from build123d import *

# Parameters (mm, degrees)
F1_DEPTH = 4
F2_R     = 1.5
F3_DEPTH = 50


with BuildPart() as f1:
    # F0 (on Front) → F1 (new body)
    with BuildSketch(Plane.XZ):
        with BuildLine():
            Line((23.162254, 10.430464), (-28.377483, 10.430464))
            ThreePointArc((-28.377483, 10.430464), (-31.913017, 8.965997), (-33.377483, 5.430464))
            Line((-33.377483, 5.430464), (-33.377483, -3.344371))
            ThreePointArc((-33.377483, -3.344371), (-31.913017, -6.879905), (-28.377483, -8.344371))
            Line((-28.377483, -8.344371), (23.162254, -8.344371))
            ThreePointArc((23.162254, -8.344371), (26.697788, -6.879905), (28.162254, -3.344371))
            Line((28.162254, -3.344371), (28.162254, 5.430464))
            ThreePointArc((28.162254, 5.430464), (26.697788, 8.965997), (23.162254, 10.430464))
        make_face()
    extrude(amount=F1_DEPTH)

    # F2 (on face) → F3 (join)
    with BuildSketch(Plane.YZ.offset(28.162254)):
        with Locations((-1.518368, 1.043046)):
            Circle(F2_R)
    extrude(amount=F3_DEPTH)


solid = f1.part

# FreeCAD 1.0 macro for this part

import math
import FreeCAD as App
import Part
import Sketcher

doc = App.newDocument("Part")
params = doc.addObject("Spreadsheet::Sheet", "Params")
for row, (alias, value) in enumerate([
    ("sketch1_radius", "5.000001 mm"),
    ("pad1_length", "4 mm"),
    ("sketch2_diameter", "3 mm"),
    ("pad2_length", "50 mm"),
], start=1):
    params.set(f"A{row}", alias)
    params.set(f"B{row}", "=" + value)
    params.setAlias(f"B{row}", alias)

body = doc.addObject("PartDesign::Body", "Body")

# Sketch on XZ plane
sketch1 = doc.addObject("Sketcher::SketchObject", "Sketch")
body.addObject(sketch1)
sketch1.AttachmentSupport = (doc.XZ_Plane, [""])
sketch1.MapMode = "FlatFace"
sketch1.addGeometry([
    Part.LineSegment(App.Vector(23.2, 10.4, 0), App.Vector(-28.4, 10.4, 0)),  # 0
    Part.ArcOfCircle(Part.Circle(App.Vector(-28.4, 5.4, 0), App.Vector(0, 0, 1), 5), math.radians(90), math.radians(180)),  # 1
    Part.LineSegment(App.Vector(-33.4, 5.4, 0), App.Vector(-33.4, -3.3, 0)),  # 2
    Part.ArcOfCircle(Part.Circle(App.Vector(-28.4, -3.3, 0), App.Vector(0, 0, 1), 5), math.radians(180), math.radians(270)),  # 3
    Part.LineSegment(App.Vector(-28.4, -8.3, 0), App.Vector(23.2, -8.3, 0)),  # 4
    Part.ArcOfCircle(Part.Circle(App.Vector(23.2, -3.3, 0), App.Vector(0, 0, 1), 5), math.radians(-90), math.radians(0)),  # 5
    Part.LineSegment(App.Vector(28.2, -3.3, 0), App.Vector(28.2, 5.4, 0)),  # 6
    Part.ArcOfCircle(Part.Circle(App.Vector(23.2, 5.4, 0), App.Vector(0, 0, 1), 5), math.radians(0), math.radians(90)),  # 7
], False)
sketch1.addConstraint([
    Sketcher.Constraint("Tangent", 0, 2, 1, 1),
    Sketcher.Constraint("Tangent", 1, 2, 2, 1),
    Sketcher.Constraint("Tangent", 2, 2, 3, 1),
    Sketcher.Constraint("Tangent", 3, 2, 4, 1),
    Sketcher.Constraint("Tangent", 4, 2, 5, 1),
    Sketcher.Constraint("Tangent", 5, 2, 6, 1),
    Sketcher.Constraint("Tangent", 6, 2, 7, 1),
    Sketcher.Constraint("Tangent", 7, 2, 0, 1),
    Sketcher.Constraint("Horizontal", 0),
    Sketcher.Constraint("Vertical", 2),
    Sketcher.Constraint("Horizontal", 4),
    Sketcher.Constraint("Vertical", 6),
    Sketcher.Constraint("Equal", 1, 3),
    Sketcher.Constraint("Equal", 3, 5),
    Sketcher.Constraint("Equal", 5, 7),
    Sketcher.Constraint("Radius", 1, 5.000001),
    Sketcher.Constraint("DistanceX", 0, 2, 0, 1, 51.539737),
    Sketcher.Constraint("DistanceY", 2, 2, 2, 1, 8.774835),
    Sketcher.Constraint("DistanceX", 1, 3, -1, 1, 28.377482),
    Sketcher.Constraint("DistanceY", 3, 3, -1, 1, 3.344371),
])
sketch1.setExpression("Constraints[15]", "Params.sketch1_radius")
pad1 = doc.addObject("PartDesign::Pad", "Pad")
body.addObject(pad1)
pad1.Profile = sketch1
pad1.setExpression("Length", "Params.pad1_length")

# Sketch on YZ plane
sketch2 = doc.addObject("Sketcher::SketchObject", "Sketch001")
body.addObject(sketch2)
sketch2.AttachmentSupport = (doc.YZ_Plane, [""])
sketch2.MapMode = "FlatFace"
sketch2.AttachmentOffset = App.Placement(App.Vector(0, 0, 28.162254), App.Rotation())
sketch2.addGeometry(Part.Circle(App.Vector(-1.5, 1, 0), App.Vector(0, 0, 1), 1.5), False)
sketch2.addConstraint([
    Sketcher.Constraint("Diameter", 0, 3.0),
    Sketcher.Constraint("DistanceX", 0, 3, -1, 1, 1.518368),
    Sketcher.Constraint("DistanceY", -1, 1, 0, 3, 1.043046),
])
sketch2.setExpression("Constraints[0]", "Params.sketch2_diameter")
pad2 = doc.addObject("PartDesign::Pad", "Pad001")
body.addObject(pad2)
pad2.Profile = sketch2
pad2.setExpression("Length", "Params.pad2_length")

doc.recompute()
